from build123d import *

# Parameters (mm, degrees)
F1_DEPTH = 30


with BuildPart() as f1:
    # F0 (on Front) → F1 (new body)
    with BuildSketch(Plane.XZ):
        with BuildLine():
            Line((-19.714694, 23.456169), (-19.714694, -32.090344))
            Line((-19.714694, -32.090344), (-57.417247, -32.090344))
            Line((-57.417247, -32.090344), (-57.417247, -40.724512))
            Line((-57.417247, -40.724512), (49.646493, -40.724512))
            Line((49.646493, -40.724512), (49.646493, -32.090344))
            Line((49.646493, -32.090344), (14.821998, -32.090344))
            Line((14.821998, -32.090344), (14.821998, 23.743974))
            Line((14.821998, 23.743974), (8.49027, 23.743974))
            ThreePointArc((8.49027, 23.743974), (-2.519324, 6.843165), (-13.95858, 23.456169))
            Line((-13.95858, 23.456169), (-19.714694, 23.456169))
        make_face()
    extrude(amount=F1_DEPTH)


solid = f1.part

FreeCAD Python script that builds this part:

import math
import FreeCAD as App
import Part
import Sketcher
Q = App.Units.Quantity

doc = App.newDocument("Part")
body = doc.addObject("PartDesign::Body", "Body")

# Sketch on XZ plane
sketch1 = doc.addObject("Sketcher::SketchObject", "Sketch")
body.addObject(sketch1)
sketch1.AttachmentSupport = (doc.XZ_Plane, [""])
sketch1.MapMode = "FlatFace"
sketch1.addGeometry([
    Part.LineSegment(App.Vector(-19.714694, 23.456169, 0), App.Vector(-19.714694, -32.090344, 0)),  # 0
    Part.LineSegment(App.Vector(-19.714694, -32.090344, 0), App.Vector(-57.417247, -32.090344, 0)),  # 1
    Part.LineSegment(App.Vector(-57.417247, -32.090344, 0), App.Vector(-57.417247, -40.724512, 0)),  # 2
    Part.LineSegment(App.Vector(-57.417247, -40.724512, 0), App.Vector(49.646493, -40.724512, 0)),  # 3
    Part.LineSegment(App.Vector(49.646493, -40.724512, 0), App.Vector(49.646493, -32.090344, 0)),  # 4
    Part.LineSegment(App.Vector(49.646493, -32.090344, 0), App.Vector(14.821998, -32.090344, 0)),  # 5
    Part.LineSegment(App.Vector(14.821998, -32.090344, 0), App.Vector(14.821998, 23.743974, 0)),  # 6
    Part.LineSegment(App.Vector(14.821998, 23.743974, 0), App.Vector(8.49027, 23.743974, 0)),  # 7
    Part.ArcOfCircle(Part.Circle(App.Vector(-2.674935, 18.980896, 0), App.Vector(0, 0, 1), 12.138728), math.radians(158.365934), math.radians(383.103104)),  # 8
    Part.LineSegment(App.Vector(-13.95858, 23.456169, 0), App.Vector(-19.714694, 23.456169, 0)),  # 9
], False)
sketch1.addConstraint([
    Sketcher.Constraint("Coincident", 0, 2, 1, 1),
    Sketcher.Constraint("Coincident", 1, 2, 2, 1),
    Sketcher.Constraint("Coincident", 2, 2, 3, 1),
    Sketcher.Constraint("Coincident", 3, 2, 4, 1),
    Sketcher.Constraint("Coincident", 4, 2, 5, 1),
    Sketcher.Constraint("Coincident", 5, 2, 6, 1),
    Sketcher.Constraint("Coincident", 6, 2, 7, 1),
    Sketcher.Constraint("Coincident", 7, 2, 8, 2),
    Sketcher.Constraint("Coincident", 8, 1, 9, 1),
    Sketcher.Constraint("Coincident", 9, 2, 0, 1),
    Sketcher.Constraint("Vertical", 0),
    Sketcher.Constraint("Horizontal", 1),
    Sketcher.Constraint("Vertical", 2),
    Sketcher.Constraint("Horizontal", 3),
    Sketcher.Constraint("Vertical", 4),
    Sketcher.Constraint("Horizontal", 5),
    Sketcher.Constraint("Vertical", 6),
    Sketcher.Constraint("Horizontal", 7),
    Sketcher.Constraint("Horizontal", 9),
    Sketcher.Constraint("Horizontal", 1, 2, 4, 2),
    Sketcher.Constraint("Radius", 8, Q("12.138728 mm")),
    Sketcher.Constraint("DistanceX", -1, 1, 5, 2, Q("14.821998 mm")),
    Sketcher.Constraint("DistanceX", 3, 1, 3, 2, Q("107.06374 mm")),
    Sketcher.Constraint("DistanceY", 6, 1, 6, 2, Q("55.834318 mm")),
    Sketcher.Constraint("DistanceX", 1, 2, 1, 1, Q("37.702553 mm")),
    Sketcher.Constraint("DistanceX", 5, 2, 5, 1, Q("34.824495 mm")),
    Sketcher.Constraint("DistanceX", 7, 2, 7, 1, Q("6.331728 mm")),
    Sketcher.Constraint("DistanceX", 9, 2, 9, 1, Q("5.756114 mm")),
    Sketcher.Constraint("DistanceY", 0, 2, 0, 1, Q("55.546513 mm")),
    Sketcher.Constraint("DistanceY", 2, 2, 2, 1, Q("8.634168 mm")),
    Sketcher.Constraint("DistanceY", 2, 2, -1, 1, Q("40.724512 mm")),
])
pad1 = doc.addObject("PartDesign::Pad", "Pad")
body.addObject(pad1)
pad1.Profile = sketch1
pad1.Length = 30

doc.recompute()
